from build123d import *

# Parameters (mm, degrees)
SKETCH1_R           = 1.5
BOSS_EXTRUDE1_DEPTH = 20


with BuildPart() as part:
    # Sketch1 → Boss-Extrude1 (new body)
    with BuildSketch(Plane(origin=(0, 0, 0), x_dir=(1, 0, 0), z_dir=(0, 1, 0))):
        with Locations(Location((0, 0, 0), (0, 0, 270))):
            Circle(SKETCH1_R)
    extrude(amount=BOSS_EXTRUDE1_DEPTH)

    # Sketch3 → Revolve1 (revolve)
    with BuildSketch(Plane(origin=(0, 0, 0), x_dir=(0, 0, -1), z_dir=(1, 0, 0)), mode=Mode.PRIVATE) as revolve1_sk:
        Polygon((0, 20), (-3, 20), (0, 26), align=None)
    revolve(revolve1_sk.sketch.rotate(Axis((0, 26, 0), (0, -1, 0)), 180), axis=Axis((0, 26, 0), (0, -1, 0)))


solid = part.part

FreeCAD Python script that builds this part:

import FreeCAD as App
import Part
import Sketcher

V = App.Vector
Q = App.Units.Quantity


def add_polygon(sketch, points):
    """Adds a closed chain of lines whose ends are joined by coincident constraints."""
    first, n = sketch.GeometryCount, len(points)
    for a, b in zip(points, points[1:] + points[:1]):
        sketch.addGeometry(Part.LineSegment(App.Vector(*a, 0), App.Vector(*b, 0)), False)
    for i in range(n):
        sketch.addConstraint(Sketcher.Constraint("Coincident", first + i, 2, first + (i + 1) % n, 1))

doc = App.newDocument("Part")
body = doc.addObject("PartDesign::Body", "Body")

sketch1 = body.newObject("Sketcher::SketchObject", "Sketch")
sketch1.AttachmentSupport = (doc.getObject("XZ_Plane"), [""])
sketch1.MapMode = "FlatFace"
sketch1.addGeometry(Part.Circle(V(0, 0, 0), V(0, 0, 1), 1.5), False)
sketch1.addConstraint(Sketcher.Constraint("Coincident", 0, 3, -1, 1))
sketch1.addConstraint(Sketcher.Constraint("Diameter", 0, Q("3 mm")))
pad1 = body.newObject("PartDesign::Pad", "Pad")
pad1.Profile = sketch1
pad1.Length = 20
pad1.Reversed = True

sketch2 = body.newObject("Sketcher::SketchObject", "Sketch001")
sketch2.AttachmentSupport = (doc.getObject("YZ_Plane"), [""])
sketch2.MapMode = "FlatFace"
add_polygon(sketch2, [(20, 3), (20, 0), (26, 0)])
sketch2.addConstraint(Sketcher.Constraint("Vertical", 0))
sketch2.addConstraint(Sketcher.Constraint("Horizontal", 1))
sketch2.addConstraint(Sketcher.Constraint("PointOnObject", 0, 2, -1))
sketch2.addConstraint(Sketcher.Constraint("DistanceX", 1, 1, 1, 2, Q("6 mm")))
sketch2.addConstraint(Sketcher.Constraint("DistanceY", 0, 2, 0, 1, Q("3 mm")))
sketch2.addConstraint(Sketcher.Constraint("DistanceX", -1, 1, 0, 2, Q("20 mm")))
revolution = body.newObject("PartDesign::Revolution", "Revolution")
revolution.Profile = sketch2
revolution.ReferenceAxis = (sketch2, ["H_Axis"])
revolution.Angle = 360

doc.recompute()
